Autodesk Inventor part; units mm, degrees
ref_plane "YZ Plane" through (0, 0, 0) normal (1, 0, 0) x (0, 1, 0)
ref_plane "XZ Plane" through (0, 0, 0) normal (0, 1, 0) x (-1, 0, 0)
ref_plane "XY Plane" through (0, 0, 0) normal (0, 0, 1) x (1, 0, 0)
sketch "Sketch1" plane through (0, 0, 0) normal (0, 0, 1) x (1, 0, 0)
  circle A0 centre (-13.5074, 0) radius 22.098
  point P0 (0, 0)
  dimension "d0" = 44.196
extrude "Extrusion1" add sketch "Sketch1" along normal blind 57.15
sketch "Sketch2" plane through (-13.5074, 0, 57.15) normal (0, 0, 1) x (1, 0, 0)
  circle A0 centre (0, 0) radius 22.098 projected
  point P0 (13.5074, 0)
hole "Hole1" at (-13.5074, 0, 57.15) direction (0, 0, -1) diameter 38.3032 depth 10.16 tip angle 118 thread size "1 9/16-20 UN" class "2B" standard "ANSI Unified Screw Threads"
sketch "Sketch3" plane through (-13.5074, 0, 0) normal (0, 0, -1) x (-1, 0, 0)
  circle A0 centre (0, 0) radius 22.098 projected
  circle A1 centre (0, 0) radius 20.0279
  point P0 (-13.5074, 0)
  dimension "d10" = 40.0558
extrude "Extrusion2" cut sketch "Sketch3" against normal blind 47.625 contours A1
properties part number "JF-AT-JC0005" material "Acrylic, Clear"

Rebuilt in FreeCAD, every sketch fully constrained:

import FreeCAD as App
import Part
import Sketcher
Q = App.Units.Quantity

doc = App.newDocument("Part")
body = doc.addObject("PartDesign::Body", "Body")

# Sketch on XY plane
sketch1 = body.newObject("Sketcher::SketchObject", "Sketch")
sketch1.AttachmentSupport = (doc.getObject("XY_Plane"), [""])
sketch1.MapMode = "FlatFace"
sketch1.addGeometry(Part.Circle(App.Vector(-14, 0, 0), App.Vector(0, 0, 1), 22), False)
sketch1.addConstraint(Sketcher.Constraint("PointOnObject", 0, 3, -1))
sketch1.addConstraint(Sketcher.Constraint("Diameter", 0, Q("1.74 in")))
sketch1.addConstraint(Sketcher.Constraint("DistanceX", 0, 3, -1, 1, 13.5074))
pad1 = body.newObject("PartDesign::Pad", "Pad")
pad1.Profile = sketch1
pad1.Length = Q("2.25 in")

# Sketch on XY plane
sketch2 = body.newObject("Sketcher::SketchObject", "Sketch001")
sketch2.AttachmentSupport = (doc.getObject("XY_Plane"), [""])
sketch2.MapMode = "FlatFace"
sketch2.AttachmentOffset = App.Placement(App.Vector(0, 0, 2.25 * 25.4), App.Rotation())
sketch2.addGeometry(Part.Circle(App.Vector(-14, 0, 0), App.Vector(0, 0, 1), 19), False)
sketch2.addConstraint(Sketcher.Constraint("PointOnObject", 0, 3, -1))
sketch2.addConstraint(Sketcher.Constraint("Diameter", 0, Q("1.508 in")))
sketch2.addConstraint(Sketcher.Constraint("DistanceX", 0, 3, -1, 1, 13.5074))
doc.recompute()
hole = body.newObject("PartDesign::Hole", "Hole")
hole.Profile = sketch2
hole.ThreadType = "None"
hole.Diameter = Q("1.508 in")
hole.DepthType = "Dimension"
hole.Depth = Q("0.4 in")
hole.DrillPoint = "Angled"
hole.DrillPointAngle = 118

# Sketch on XY plane
sketch3 = body.newObject("Sketcher::SketchObject", "Sketch002")
sketch3.AttachmentSupport = (doc.getObject("XY_Plane"), [""])
sketch3.MapMode = "FlatFace"
sketch3.addGeometry(Part.Circle(App.Vector(-14, 0, 0), App.Vector(0, 0, 1), 20), False)
sketch3.addConstraint(Sketcher.Constraint("PointOnObject", 0, 3, -1))
sketch3.addConstraint(Sketcher.Constraint("Diameter", 0, Q("1.577 in")))
sketch3.addConstraint(Sketcher.Constraint("DistanceX", 0, 3, -1, 1, 13.5074))
pocket1 = body.newObject("PartDesign::Pocket", "Pocket")
pocket1.Profile = sketch3
pocket1.Length = Q("1.875 in")
pocket1.Reversed = True

doc.recompute()
